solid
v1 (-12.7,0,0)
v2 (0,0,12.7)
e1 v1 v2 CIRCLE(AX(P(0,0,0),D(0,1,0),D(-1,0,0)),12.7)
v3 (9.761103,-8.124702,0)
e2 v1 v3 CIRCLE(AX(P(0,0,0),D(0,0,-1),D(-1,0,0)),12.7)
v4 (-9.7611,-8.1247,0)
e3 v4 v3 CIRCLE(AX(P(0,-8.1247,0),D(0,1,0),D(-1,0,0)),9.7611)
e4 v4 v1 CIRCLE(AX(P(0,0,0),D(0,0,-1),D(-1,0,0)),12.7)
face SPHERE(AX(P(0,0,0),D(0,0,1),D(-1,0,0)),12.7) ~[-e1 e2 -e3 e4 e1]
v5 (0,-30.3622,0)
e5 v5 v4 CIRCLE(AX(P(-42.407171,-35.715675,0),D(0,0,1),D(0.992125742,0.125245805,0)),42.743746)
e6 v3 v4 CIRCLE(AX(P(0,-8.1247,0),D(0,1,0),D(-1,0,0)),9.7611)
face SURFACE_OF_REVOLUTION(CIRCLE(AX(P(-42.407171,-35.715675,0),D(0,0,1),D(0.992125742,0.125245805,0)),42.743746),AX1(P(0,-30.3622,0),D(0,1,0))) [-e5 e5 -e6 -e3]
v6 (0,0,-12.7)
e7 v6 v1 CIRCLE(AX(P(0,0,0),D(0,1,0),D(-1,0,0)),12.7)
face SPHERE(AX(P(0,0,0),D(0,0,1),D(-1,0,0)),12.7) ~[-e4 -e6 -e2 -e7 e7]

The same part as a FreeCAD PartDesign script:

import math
import FreeCAD as App
import Part
import Sketcher
Q = App.Units.Quantity

doc = App.newDocument("Part")
body = doc.addObject("PartDesign::Body", "Body")

sketch1 = body.newObject("Sketcher::SketchObject", "Sketch")
sketch1.AttachmentSupport = (doc.getObject("XZ_Plane"), [""])
sketch1.MapMode = "FlatFace"
sketch1.addGeometry(Part.ArcOfCircle(Part.Circle(App.Vector(0, 0, 0), App.Vector(0, 0, 1), 13), math.radians(90), math.radians(270)), False)
sketch1.addGeometry(Part.LineSegment(App.Vector(0, 13, 0), App.Vector(0, -13, 0)), False)
sketch1.addConstraint(Sketcher.Constraint("Coincident", 0, 1, 1, 1))
sketch1.addConstraint(Sketcher.Constraint("Coincident", 1, 2, 0, 2))
sketch1.addConstraint(Sketcher.Constraint("Vertical", 1))
sketch1.addConstraint(Sketcher.Constraint("Coincident", 0, 3, -1, 1))
sketch1.addConstraint(Sketcher.Constraint("PointOnObject", 0, 1, -2))
sketch1.addConstraint(Sketcher.Constraint("Radius", 0, Q("0.5 in")))
revolution = body.newObject("PartDesign::Revolution", "Revolution")
revolution.Profile = sketch1
revolution.ReferenceAxis = (sketch1, ["V_Axis"])
revolution.Angle = 360

sketch2 = body.newObject("Sketcher::SketchObject", "Sketch001")
sketch2.AttachmentSupport = (doc.getObject("XY_Plane"), [""])
sketch2.MapMode = "FlatFace"
sketch2.addGeometry(Part.ArcOfCircle(Part.Circle(App.Vector(0, 0, 0), App.Vector(0, 0, 1), 13), math.radians(-140), math.radians(-90)), False)
sketch2.addGeometry(Part.ArcOfCircle(Part.Circle(App.Vector(-42, -36, 0), App.Vector(0, 0, 1), 43), math.radians(7), math.radians(40)), False)
sketch2.addGeometry(Part.LineSegment(App.Vector(0, -30, 0), App.Vector(0, -13, 0)), False)
sketch2.addConstraint(Sketcher.Constraint("Coincident", 0, 1, 1, 2))
sketch2.addConstraint(Sketcher.Constraint("Coincident", 1, 1, 2, 1))
sketch2.addConstraint(Sketcher.Constraint("Coincident", 2, 2, 0, 2))
sketch2.addConstraint(Sketcher.Constraint("Vertical", 2))
sketch2.addConstraint(Sketcher.Constraint("Coincident", 0, 3, -1, 1))
sketch2.addConstraint(Sketcher.Constraint("PointOnObject", 1, 1, -2))
sketch2.addConstraint(Sketcher.Constraint("Radius", 0, Q("0.5 in")))
sketch2.addConstraint(Sketcher.Constraint("Radius", 1, 42.7435))
sketch2.addConstraint(Sketcher.Constraint("DistanceY", 2, 1, 2, 2, 17.6622))
sketch2.addConstraint(Sketcher.Constraint("DistanceX", 0, 1, -1, 1, Q("0.3843 in")))
revolution2 = body.newObject("PartDesign::Revolution", "Revolution001")
revolution2.Profile = sketch2
revolution2.ReferenceAxis = (sketch2, ["V_Axis"])
revolution2.Angle = 360

doc.recompute()
